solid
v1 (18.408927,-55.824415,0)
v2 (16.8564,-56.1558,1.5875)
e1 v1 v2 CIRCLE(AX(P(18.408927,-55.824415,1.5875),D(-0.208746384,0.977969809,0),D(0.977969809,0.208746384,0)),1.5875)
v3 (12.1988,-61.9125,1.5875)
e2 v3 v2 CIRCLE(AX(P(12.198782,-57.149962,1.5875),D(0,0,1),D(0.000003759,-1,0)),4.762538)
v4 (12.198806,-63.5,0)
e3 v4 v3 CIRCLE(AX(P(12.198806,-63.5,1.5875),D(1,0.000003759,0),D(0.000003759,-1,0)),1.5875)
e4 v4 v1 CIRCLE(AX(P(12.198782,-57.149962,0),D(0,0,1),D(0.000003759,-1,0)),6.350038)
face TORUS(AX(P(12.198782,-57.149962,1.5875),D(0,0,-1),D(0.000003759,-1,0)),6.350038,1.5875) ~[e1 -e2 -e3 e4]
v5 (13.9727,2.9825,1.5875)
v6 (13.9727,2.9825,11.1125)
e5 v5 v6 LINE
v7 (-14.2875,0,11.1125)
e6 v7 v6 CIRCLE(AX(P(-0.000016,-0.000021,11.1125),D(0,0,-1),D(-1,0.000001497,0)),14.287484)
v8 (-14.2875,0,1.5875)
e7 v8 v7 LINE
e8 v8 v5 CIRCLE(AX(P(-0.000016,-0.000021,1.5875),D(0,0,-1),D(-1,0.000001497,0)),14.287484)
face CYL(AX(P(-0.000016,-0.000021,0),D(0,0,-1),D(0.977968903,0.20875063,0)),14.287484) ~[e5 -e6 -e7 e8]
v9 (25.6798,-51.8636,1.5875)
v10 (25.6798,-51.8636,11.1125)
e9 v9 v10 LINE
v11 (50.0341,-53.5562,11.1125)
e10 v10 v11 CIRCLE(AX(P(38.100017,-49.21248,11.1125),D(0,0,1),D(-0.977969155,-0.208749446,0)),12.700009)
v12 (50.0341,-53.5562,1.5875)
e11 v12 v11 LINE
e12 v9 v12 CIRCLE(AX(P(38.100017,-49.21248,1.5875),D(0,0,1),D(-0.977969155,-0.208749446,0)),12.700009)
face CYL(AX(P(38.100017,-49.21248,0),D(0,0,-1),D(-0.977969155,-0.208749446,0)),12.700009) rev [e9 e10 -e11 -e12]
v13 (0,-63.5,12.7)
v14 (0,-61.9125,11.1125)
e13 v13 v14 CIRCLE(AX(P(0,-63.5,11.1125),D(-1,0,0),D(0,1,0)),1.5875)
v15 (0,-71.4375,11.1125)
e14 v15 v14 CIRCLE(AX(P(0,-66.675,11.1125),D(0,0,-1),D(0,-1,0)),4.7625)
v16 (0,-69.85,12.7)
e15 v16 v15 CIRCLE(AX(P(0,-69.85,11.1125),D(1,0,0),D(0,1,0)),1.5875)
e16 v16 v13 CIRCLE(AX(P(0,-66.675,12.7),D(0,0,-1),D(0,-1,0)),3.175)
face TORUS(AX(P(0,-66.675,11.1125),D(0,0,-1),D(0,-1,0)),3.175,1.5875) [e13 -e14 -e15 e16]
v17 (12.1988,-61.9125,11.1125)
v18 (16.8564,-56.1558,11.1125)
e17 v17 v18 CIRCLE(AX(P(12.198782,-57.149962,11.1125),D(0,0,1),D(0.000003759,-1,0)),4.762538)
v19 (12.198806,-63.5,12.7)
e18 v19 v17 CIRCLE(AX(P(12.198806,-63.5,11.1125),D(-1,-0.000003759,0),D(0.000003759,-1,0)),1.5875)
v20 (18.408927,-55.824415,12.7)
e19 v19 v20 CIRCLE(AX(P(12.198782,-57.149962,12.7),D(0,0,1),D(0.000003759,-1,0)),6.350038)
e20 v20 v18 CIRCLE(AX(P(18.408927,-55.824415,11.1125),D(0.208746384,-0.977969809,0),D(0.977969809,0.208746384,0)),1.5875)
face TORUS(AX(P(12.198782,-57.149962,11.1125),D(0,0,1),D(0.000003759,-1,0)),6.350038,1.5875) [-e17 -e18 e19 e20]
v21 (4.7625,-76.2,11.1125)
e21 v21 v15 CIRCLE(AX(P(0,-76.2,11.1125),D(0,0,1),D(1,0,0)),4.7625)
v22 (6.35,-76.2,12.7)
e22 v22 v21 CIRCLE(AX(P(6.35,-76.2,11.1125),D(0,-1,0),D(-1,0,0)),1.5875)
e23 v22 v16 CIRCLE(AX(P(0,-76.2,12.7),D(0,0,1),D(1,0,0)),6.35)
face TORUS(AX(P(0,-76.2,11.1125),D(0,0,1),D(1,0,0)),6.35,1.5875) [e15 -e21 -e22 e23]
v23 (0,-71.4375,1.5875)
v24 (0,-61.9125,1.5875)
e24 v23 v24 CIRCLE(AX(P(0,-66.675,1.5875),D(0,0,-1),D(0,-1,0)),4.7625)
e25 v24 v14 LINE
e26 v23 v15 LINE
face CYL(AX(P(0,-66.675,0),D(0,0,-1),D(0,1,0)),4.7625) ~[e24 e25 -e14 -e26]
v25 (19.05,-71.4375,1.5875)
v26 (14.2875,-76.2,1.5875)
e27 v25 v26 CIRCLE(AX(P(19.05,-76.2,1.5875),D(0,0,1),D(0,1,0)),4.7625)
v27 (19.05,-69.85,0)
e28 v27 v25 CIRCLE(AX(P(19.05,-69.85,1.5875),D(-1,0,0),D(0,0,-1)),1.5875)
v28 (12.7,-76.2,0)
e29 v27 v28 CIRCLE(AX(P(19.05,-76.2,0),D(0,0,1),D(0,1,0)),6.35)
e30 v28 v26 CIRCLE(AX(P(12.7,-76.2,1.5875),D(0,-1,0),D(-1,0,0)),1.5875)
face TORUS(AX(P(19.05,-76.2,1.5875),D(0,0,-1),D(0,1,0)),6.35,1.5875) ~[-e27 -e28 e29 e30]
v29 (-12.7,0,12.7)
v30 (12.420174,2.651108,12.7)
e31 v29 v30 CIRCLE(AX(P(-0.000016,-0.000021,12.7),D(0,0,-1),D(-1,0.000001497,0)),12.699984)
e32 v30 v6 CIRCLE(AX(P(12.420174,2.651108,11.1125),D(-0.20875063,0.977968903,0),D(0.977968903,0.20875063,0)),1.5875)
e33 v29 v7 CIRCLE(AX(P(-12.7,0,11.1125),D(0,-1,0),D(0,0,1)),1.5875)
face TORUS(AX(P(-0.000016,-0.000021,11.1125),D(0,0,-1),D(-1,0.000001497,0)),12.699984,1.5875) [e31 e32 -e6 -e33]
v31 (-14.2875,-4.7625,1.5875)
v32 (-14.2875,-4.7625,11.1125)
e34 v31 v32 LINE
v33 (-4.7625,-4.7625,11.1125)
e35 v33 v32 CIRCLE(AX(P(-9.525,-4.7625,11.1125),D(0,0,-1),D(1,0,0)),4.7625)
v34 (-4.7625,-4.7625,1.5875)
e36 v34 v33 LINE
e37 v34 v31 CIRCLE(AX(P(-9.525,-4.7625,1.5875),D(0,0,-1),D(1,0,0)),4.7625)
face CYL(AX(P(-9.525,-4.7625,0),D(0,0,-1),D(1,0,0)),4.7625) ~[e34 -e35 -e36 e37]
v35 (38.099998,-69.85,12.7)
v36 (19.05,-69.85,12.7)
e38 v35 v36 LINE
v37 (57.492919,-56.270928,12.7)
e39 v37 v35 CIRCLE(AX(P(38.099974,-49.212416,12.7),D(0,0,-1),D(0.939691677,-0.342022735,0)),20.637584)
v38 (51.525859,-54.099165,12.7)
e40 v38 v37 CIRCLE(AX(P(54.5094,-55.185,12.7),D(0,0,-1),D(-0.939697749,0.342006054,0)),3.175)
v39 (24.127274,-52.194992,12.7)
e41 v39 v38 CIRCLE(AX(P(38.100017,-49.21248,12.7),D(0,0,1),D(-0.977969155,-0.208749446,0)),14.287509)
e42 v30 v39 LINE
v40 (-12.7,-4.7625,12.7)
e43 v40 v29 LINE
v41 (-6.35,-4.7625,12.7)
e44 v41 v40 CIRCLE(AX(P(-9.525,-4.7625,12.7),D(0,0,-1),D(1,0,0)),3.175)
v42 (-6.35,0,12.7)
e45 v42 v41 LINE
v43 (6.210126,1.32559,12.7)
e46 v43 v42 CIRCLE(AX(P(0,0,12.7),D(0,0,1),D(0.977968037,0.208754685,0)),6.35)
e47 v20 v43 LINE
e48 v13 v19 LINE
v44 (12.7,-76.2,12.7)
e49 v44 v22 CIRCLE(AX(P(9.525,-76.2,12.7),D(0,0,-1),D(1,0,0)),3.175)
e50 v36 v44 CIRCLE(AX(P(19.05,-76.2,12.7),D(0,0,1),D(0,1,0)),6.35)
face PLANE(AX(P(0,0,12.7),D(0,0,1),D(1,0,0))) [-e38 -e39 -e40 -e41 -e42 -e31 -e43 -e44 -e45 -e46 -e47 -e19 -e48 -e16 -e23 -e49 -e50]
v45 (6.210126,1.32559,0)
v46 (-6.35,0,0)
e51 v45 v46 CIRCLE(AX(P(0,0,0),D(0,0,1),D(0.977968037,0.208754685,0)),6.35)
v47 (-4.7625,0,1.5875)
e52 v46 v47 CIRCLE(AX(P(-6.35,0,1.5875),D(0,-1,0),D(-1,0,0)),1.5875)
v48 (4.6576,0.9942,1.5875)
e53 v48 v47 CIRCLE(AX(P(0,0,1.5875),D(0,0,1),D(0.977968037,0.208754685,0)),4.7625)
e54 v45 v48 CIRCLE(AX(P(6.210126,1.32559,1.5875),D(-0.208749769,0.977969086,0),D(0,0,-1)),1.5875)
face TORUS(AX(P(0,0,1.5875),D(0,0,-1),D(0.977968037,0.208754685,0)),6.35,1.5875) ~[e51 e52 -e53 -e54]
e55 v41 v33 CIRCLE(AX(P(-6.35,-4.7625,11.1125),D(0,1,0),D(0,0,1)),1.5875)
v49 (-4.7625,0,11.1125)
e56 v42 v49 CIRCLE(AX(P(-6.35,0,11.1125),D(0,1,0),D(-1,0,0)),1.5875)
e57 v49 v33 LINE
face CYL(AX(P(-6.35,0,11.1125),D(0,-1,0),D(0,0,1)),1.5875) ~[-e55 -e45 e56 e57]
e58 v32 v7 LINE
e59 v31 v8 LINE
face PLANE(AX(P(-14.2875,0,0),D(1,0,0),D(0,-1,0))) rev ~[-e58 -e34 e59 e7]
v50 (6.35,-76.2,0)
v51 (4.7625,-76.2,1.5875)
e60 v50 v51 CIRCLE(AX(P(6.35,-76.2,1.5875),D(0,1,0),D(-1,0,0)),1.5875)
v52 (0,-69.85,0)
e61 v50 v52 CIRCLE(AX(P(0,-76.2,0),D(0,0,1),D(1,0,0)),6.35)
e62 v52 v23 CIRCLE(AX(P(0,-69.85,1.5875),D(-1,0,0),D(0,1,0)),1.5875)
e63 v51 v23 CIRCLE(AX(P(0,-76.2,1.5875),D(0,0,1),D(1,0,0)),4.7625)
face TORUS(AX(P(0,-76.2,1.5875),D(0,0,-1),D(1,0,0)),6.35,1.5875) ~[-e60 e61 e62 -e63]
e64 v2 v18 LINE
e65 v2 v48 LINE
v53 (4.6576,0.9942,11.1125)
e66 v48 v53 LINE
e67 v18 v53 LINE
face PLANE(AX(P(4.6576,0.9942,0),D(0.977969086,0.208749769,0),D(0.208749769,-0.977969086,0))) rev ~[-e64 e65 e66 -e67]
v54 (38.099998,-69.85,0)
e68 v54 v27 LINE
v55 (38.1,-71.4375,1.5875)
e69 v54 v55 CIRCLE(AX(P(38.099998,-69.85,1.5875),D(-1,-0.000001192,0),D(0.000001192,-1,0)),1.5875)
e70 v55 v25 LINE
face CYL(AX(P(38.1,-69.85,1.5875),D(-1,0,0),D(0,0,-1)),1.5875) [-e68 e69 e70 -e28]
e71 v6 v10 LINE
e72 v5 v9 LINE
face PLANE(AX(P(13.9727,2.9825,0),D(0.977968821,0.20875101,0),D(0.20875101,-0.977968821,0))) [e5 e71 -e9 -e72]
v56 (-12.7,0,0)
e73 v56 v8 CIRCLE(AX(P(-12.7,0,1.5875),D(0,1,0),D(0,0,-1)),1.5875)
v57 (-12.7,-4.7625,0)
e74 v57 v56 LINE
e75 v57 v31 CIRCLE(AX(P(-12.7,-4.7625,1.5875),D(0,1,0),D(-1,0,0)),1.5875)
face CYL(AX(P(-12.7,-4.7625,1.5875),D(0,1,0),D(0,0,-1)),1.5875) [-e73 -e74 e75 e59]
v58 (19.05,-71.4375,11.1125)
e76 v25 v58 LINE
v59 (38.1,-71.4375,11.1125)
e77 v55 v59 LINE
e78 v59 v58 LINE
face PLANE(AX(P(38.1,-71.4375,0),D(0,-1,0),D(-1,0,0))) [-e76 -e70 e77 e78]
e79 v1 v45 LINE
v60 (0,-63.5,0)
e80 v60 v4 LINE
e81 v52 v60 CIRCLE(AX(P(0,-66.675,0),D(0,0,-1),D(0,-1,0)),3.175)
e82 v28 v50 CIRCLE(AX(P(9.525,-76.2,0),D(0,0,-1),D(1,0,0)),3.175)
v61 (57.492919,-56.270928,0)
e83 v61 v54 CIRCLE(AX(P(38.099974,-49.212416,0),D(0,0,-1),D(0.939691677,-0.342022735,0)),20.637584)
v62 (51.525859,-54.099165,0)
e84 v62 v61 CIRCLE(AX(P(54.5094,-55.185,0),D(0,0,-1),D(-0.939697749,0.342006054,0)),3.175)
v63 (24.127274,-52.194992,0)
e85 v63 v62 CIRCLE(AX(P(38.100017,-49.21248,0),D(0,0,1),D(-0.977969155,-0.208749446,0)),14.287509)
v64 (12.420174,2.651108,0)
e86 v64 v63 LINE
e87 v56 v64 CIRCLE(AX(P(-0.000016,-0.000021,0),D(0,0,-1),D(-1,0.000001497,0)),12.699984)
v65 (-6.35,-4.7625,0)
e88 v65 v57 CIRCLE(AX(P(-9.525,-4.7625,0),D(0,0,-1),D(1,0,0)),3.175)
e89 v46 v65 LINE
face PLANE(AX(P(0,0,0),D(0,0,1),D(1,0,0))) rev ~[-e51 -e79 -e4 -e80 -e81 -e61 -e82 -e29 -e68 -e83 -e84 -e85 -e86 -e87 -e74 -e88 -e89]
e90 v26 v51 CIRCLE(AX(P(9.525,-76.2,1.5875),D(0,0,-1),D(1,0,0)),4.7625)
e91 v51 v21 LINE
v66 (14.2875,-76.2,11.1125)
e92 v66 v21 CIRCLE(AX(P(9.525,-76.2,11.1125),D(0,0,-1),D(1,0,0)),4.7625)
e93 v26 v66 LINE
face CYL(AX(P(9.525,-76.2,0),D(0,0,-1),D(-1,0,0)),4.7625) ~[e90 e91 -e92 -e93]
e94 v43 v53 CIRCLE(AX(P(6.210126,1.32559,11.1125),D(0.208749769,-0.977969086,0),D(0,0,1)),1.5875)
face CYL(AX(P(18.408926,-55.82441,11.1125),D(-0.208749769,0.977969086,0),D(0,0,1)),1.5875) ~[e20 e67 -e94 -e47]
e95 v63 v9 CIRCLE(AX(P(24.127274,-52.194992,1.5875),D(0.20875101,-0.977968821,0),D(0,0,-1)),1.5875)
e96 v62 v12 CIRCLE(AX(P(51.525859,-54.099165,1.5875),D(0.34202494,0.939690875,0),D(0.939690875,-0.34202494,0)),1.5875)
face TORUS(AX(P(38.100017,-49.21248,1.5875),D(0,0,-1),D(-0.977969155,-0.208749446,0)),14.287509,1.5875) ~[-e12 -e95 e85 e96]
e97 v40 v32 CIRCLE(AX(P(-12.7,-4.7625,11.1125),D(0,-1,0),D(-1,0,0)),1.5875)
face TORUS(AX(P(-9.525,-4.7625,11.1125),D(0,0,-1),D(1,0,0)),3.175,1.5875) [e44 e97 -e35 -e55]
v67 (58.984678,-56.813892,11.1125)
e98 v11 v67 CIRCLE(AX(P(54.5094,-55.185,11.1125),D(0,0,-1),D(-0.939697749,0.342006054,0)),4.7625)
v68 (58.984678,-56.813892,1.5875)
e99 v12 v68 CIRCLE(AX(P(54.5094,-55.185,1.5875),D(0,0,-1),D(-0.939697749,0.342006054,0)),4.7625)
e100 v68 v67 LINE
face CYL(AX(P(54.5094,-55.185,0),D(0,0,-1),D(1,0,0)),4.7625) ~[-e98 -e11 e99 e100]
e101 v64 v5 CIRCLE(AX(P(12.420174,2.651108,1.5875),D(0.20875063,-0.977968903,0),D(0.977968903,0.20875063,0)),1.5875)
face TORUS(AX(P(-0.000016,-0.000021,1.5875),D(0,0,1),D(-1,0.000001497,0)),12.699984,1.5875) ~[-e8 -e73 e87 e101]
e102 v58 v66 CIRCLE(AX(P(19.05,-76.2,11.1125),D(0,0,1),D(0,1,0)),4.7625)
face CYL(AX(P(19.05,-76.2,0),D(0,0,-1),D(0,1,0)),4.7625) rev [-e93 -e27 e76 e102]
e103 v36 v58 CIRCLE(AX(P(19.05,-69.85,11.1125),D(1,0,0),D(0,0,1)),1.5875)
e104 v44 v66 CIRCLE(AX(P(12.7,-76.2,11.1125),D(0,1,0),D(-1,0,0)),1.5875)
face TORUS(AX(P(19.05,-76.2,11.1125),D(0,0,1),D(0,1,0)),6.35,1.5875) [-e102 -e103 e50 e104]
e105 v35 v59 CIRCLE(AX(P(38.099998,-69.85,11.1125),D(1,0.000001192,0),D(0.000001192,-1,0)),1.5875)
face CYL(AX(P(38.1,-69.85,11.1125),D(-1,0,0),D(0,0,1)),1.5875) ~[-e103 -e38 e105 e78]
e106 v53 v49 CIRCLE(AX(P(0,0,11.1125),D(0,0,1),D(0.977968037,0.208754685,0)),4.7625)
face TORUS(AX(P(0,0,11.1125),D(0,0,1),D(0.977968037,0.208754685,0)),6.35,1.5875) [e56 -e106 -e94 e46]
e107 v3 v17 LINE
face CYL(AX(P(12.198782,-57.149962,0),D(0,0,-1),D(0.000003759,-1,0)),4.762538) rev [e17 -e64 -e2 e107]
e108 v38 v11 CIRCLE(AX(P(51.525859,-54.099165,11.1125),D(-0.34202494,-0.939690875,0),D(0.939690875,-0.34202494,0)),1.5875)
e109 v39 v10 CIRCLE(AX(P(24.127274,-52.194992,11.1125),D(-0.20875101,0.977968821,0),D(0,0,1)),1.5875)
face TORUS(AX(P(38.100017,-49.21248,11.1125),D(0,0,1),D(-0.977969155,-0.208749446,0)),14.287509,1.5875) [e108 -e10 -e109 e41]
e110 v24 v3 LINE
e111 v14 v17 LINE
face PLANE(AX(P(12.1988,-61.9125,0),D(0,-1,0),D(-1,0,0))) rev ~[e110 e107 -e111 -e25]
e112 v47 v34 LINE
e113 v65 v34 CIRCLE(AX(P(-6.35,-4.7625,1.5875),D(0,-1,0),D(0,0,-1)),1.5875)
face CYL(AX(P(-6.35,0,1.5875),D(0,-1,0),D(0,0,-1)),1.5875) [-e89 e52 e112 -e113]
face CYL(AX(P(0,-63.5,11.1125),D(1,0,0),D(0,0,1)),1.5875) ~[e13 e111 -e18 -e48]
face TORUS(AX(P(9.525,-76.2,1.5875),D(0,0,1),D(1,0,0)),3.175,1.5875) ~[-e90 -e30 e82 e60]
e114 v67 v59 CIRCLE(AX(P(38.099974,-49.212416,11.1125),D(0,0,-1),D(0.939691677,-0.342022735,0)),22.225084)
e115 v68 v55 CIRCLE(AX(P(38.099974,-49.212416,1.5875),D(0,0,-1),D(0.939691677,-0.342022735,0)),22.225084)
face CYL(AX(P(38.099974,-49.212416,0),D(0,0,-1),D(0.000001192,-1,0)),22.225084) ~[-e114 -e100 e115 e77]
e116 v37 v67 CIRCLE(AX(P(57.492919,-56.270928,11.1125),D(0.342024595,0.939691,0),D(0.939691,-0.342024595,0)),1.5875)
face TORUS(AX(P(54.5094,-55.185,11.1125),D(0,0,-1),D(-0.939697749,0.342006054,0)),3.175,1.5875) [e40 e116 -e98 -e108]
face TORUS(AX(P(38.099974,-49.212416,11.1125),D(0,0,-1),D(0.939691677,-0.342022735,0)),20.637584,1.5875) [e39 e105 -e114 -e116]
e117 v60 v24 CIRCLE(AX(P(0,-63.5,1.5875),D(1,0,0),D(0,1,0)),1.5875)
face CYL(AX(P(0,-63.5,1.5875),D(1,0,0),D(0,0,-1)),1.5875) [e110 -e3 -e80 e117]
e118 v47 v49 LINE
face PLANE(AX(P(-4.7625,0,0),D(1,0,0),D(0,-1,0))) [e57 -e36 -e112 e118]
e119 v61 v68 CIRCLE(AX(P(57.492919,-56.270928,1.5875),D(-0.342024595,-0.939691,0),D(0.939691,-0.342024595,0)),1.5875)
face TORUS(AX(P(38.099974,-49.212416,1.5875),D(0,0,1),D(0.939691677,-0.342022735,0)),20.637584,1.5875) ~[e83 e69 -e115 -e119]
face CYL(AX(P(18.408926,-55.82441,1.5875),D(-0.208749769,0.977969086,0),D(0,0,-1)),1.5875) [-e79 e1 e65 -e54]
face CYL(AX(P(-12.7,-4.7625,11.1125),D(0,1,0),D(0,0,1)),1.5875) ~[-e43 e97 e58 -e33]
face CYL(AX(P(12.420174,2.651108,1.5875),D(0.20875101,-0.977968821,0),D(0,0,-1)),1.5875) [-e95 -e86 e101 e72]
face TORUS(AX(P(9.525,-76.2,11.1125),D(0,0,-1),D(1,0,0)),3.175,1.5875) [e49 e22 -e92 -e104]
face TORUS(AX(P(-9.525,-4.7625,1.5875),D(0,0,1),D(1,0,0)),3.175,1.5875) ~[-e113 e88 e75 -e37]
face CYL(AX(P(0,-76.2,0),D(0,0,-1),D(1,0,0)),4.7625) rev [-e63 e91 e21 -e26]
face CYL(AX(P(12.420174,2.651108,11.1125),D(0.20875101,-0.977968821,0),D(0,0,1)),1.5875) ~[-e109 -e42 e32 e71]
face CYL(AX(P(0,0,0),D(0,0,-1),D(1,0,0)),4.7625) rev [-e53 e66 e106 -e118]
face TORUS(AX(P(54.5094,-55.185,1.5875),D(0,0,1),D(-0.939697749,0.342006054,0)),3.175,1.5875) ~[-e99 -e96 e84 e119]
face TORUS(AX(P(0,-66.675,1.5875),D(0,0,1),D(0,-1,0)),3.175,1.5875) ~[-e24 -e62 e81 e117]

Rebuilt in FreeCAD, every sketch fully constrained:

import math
import FreeCAD as App
import Part
import Sketcher

V = App.Vector
Q = App.Units.Quantity


def edges_at(feature, points):
    """Names of the edges that pass closest to the given points."""
    edges = feature.Shape.Edges
    near = lambda p: min(range(len(edges)), key=lambda i: edges[i].distToShape(Part.Vertex(*p))[0])
    return sorted({f"Edge{near(p) + 1}" for p in points})

doc = App.newDocument("Part")
body = doc.addObject("PartDesign::Body", "Body")

# Sketch on XY plane
sketch1 = body.newObject("Sketcher::SketchObject", "Sketch")
sketch1.AttachmentSupport = (doc.getObject("XY_Plane"), [""])
sketch1.MapMode = "FlatFace"
sketch1.addGeometry([
    Part.ArcOfCircle(Part.Circle(V(0, 0, 0), V(0, 0, 1), 4.8), math.radians(12), math.radians(180)),  # 0
    Part.LineSegment(V(4.7, 1, 0), V(16.9, -56.2, 0)),  # 1
    Part.ArcOfCircle(Part.Circle(V(12.2, -57.1, 0), V(0, 0, 1), 4.8), math.radians(-90), math.radians(12)),  # 2
    Part.LineSegment(V(12.2, -61.9, 0), V(0, -61.9, 0)),  # 3
    Part.ArcOfCircle(Part.Circle(V(0, -66.7, 0), V(0, 0, 1), 4.8), math.radians(90), math.radians(270)),  # 4
    Part.ArcOfCircle(Part.Circle(V(0, -76.2, 0), V(0, 0, 1), 4.8), math.radians(0), math.radians(90)),  # 5
    Part.ArcOfCircle(Part.Circle(V(9.5, -76.2, 0), V(0, 0, 1), 4.8), math.radians(180), math.radians(360)),  # 6
    Part.ArcOfCircle(Part.Circle(V(19.1, -76.2, 0), V(0, 0, 1), 4.8), math.radians(90), math.radians(180)),  # 7
    Part.LineSegment(V(19.1, -71.4, 0), V(38.1, -71.4, 0)),  # 8
    Part.ArcOfCircle(Part.Circle(V(38.1, -49.2, 0), V(0, 0, 1), 22.2), math.radians(-90), math.radians(-20)),  # 9
    Part.ArcOfCircle(Part.Circle(V(54.5, -55.2, 0), V(0, 0, 1), 4.8), math.radians(-20), math.radians(160)),  # 10
    Part.ArcOfCircle(Part.Circle(V(38.1, -49.2, 0), V(0, 0, 1), 12.7), math.radians(-168), math.radians(-20)),  # 11
    Part.LineSegment(V(25.7, -51.9, 0), V(14, 3, 0)),  # 12
    Part.ArcOfCircle(Part.Circle(V(0, 0, 0), V(0, 0, 1), 14.3), math.radians(12), math.radians(180)),  # 13
    Part.LineSegment(V(-14.3, 0, 0), V(-14.3, -4.8, 0)),  # 14
    Part.ArcOfCircle(Part.Circle(V(-9.5, -4.8, 0), V(0, 0, 1), 4.8), math.radians(180), math.radians(360)),  # 15
    Part.LineSegment(V(-4.8, -4.8, 0), V(-4.8, 0, 0)),  # 16
], False)
sketch1.addConstraint([
    Sketcher.Constraint("Tangent", 0, 1, 1, 1),
    Sketcher.Constraint("Tangent", 1, 2, 2, 2),
    Sketcher.Constraint("Tangent", 2, 1, 3, 1),
    Sketcher.Constraint("Tangent", 3, 2, 4, 1),
    Sketcher.Constraint("Tangent", 4, 2, 5, 2),
    Sketcher.Constraint("Tangent", 5, 1, 6, 1),
    Sketcher.Constraint("Tangent", 6, 2, 7, 2),
    Sketcher.Constraint("Tangent", 7, 1, 8, 1),
    Sketcher.Constraint("Tangent", 8, 2, 9, 1),
    Sketcher.Constraint("Tangent", 9, 2, 10, 1),
    Sketcher.Constraint("Tangent", 10, 2, 11, 2),
    Sketcher.Constraint("Tangent", 11, 1, 12, 1),
    Sketcher.Constraint("Tangent", 12, 2, 13, 1),
    Sketcher.Constraint("Tangent", 13, 2, 14, 1),
    Sketcher.Constraint("Tangent", 14, 2, 15, 1),
    Sketcher.Constraint("Tangent", 15, 2, 16, 1),
    Sketcher.Constraint("Tangent", 16, 2, 0, 2),
    Sketcher.Constraint("Horizontal", 3),
    Sketcher.Constraint("Horizontal", 8),
    Sketcher.Constraint("Vertical", 14),
    Sketcher.Constraint("Vertical", 16),
    Sketcher.Constraint("Coincident", 0, 3, -1, 1),
    Sketcher.Constraint("Coincident", 13, 3, -1, 1),
    Sketcher.Constraint("Coincident", 11, 3, 9, 3),
    Sketcher.Constraint("Equal", 0, 2),
    Sketcher.Constraint("Equal", 2, 4),
    Sketcher.Constraint("Equal", 4, 5),
    Sketcher.Constraint("Equal", 5, 6),
    Sketcher.Constraint("Equal", 6, 7),
    Sketcher.Constraint("Equal", 7, 10),
    Sketcher.Constraint("Equal", 10, 15),
    Sketcher.Constraint("PointOnObject", 4, 3, -2),
    Sketcher.Constraint("PointOnObject", 5, 3, -2),
    Sketcher.Constraint("Parallel", 1, 12),
    Sketcher.Constraint("Horizontal", 5, 3, 6, 3),
    Sketcher.Constraint("Horizontal", 6, 3, 7, 3),
    Sketcher.Constraint("Radius", 11, Q("0.5 in")),
    Sketcher.Constraint("DistanceY", 5, 3, -1, 1, Q("3 in")),
    Sketcher.Constraint("Radius", 0, Q("0.1875 in")),
    Sketcher.Constraint("DistanceX", -1, 1, 9, 3, Q("1.5 in")),
    Sketcher.Constraint("DistanceY", 14, 2, 14, 1, Q("0.1875 in")),
    Sketcher.Constraint("DistanceY", 10, 2, 9, 3, Q("0.171 in")),
])
pad1 = body.newObject("PartDesign::Pad", "Pad")
pad1.Profile = sketch1
pad1.Length = Q("0.5 in")
doc.recompute()

fillet = body.newObject("PartDesign::Fillet", "Fillet")
fillet.Base = (pad1, edges_at(pad1, [
    (15.901, -60.146, 12.7),
    (6.099, -61.913, 12.7),
    (-4.763, -66.675, 12.7),
    (3.368, -72.832, 12.7),
    (9.525, -80.963, 12.7),
    (15.682, -72.832, 12.7),
    (28.575, -71.438, 12.7),
    (50.848, -67.418, 12.7),
    (56.138, -50.71, 12.7),
    (37.219, -61.882, 12.7),
    (19.826, -24.441, 12.7),
    (-1.5, 14.209, 12.7),
    (-14.287, -2.381, 12.7),
    (-9.525, -9.525, 12.7),
    (-4.763, -2.381, 12.7),
    (-0.5, 4.736, 12.7),
    (10.757, -27.581, 12.7),
    (15.901, -60.146, 0),
    (6.099, -61.913, 0),
    (-4.763, -66.675, 0),
    (3.368, -72.832, 0),
    (9.525, -80.963, 0),
    (15.682, -72.832, 0),
    (28.575, -71.438, 0),
    (50.848, -67.418, 0),
    (56.138, -50.71, 0),
    (37.219, -61.882, 0),
    (19.826, -24.441, 0),
    (-1.5, 14.209, 0),
    (-14.287, -2.381, 0),
    (-9.525, -9.525, 0),
    (-4.763, -2.381, 0),
    (-0.5, 4.736, 0),
    (10.757, -27.581, 0),
]))
fillet.Radius = Q("0.0625 in")

doc.recompute()
